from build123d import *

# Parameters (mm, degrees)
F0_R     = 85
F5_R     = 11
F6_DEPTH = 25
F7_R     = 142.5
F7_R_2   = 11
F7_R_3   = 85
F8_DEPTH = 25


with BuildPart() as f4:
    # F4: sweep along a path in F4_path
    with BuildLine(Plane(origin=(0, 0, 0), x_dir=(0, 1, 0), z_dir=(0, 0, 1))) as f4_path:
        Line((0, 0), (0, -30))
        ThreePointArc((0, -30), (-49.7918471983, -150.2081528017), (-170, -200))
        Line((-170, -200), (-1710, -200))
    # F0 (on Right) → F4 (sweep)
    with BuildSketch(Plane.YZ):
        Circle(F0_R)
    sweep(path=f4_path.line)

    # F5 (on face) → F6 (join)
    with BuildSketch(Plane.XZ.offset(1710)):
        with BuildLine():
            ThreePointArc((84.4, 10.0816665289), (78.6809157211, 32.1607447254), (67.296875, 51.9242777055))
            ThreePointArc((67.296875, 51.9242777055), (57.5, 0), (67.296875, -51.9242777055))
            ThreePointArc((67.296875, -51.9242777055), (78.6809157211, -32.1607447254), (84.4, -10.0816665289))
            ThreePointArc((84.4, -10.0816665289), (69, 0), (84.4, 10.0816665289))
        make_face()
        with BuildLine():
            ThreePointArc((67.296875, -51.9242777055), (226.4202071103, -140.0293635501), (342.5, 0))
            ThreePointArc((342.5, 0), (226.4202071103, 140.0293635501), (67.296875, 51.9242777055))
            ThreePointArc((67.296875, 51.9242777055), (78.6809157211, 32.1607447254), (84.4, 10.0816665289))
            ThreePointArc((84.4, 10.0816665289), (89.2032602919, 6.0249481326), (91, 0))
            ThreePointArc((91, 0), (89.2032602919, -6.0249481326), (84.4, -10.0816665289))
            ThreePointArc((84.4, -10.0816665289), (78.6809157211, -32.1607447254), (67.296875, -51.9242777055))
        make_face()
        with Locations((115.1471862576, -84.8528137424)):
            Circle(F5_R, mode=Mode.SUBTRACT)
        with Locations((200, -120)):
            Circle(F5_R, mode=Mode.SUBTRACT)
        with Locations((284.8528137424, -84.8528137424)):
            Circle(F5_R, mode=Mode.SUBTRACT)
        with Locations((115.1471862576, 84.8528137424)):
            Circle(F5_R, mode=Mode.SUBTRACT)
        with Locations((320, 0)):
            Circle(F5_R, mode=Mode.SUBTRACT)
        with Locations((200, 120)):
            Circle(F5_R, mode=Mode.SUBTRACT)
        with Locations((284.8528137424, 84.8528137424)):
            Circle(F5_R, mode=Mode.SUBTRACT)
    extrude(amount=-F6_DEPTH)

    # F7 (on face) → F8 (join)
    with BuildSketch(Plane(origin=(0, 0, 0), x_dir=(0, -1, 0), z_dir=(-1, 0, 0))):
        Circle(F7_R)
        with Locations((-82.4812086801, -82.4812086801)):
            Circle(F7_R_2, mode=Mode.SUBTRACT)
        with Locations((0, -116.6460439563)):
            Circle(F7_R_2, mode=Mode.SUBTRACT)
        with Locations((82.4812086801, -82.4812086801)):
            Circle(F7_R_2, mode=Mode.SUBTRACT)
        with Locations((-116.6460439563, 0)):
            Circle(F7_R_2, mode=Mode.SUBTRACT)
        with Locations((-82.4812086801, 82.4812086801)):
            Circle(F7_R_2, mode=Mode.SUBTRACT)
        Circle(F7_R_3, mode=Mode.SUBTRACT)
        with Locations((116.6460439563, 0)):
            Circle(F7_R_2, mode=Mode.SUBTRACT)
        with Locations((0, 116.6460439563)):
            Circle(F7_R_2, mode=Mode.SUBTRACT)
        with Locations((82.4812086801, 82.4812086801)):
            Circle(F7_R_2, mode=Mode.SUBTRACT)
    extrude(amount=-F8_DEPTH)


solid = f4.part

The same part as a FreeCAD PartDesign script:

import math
import FreeCAD as App
import Part
import Sketcher

V = App.Vector
Q = App.Units.Quantity

doc = App.newDocument("Part")
body = doc.addObject("PartDesign::Body", "Body")

# Sketch on YZ plane
sketch1 = body.newObject("Sketcher::SketchObject", "Sketch")
sketch1.AttachmentSupport = (doc.getObject("YZ_Plane"), [""])
sketch1.MapMode = "FlatFace"
sketch1.addGeometry(Part.Circle(V(0, 0, 0), V(0, 0, 1), 85), False)
sketch1.addConstraint([
    Sketcher.Constraint("Coincident", 0, 3, -1, 1),
    Sketcher.Constraint("Diameter", 0, Q("170 mm")),
])

# Sketch on XY plane
sketch2 = body.newObject("Sketcher::SketchObject", "Sketch001")
sketch2.AttachmentSupport = (doc.getObject("XY_Plane"), [""])
sketch2.MapMode = "FlatFace"
sketch2.addGeometry([
    Part.LineSegment(V(0, 0, 0), V(30, 0, 0)),
    Part.ArcOfCircle(Part.Circle(V(30, -170, 0), V(0, 0, 1), 170), math.radians(0), math.radians(90)),
    Part.LineSegment(V(200, -170, 0), V(200, -1710, 0)),
], False)
sketch2.addConstraint([
    Sketcher.Constraint("Tangent", 0, 2, 1, 2),
    Sketcher.Constraint("Tangent", 1, 1, 2, 1),
    Sketcher.Constraint("Horizontal", 0),
    Sketcher.Constraint("Vertical", 2),
    Sketcher.Constraint("Coincident", 0, 1, -1, 1),
    Sketcher.Constraint("Radius", 1, Q("170 mm")),
    Sketcher.Constraint("DistanceX", 0, 1, 0, 2, Q("30 mm")),
    Sketcher.Constraint("DistanceY", 2, 2, 2, 1, Q("1540 mm")),
])
doc.recompute()

additivepipe = body.newObject("PartDesign::AdditivePipe", "AdditivePipe")
additivepipe.Profile = sketch1
additivepipe.Spine = (sketch2, ["Edge1", "Edge2", "Edge3"])

# Sketch on XZ plane
sketch3 = body.newObject("Sketcher::SketchObject", "Sketch002")
sketch3.AttachmentSupport = (doc.getObject("XZ_Plane"), [""])
sketch3.MapMode = "FlatFace"
sketch3.AttachmentOffset = App.Placement(V(0, 0, 1710), App.Rotation())
sketch3.addGeometry([
    Part.Circle(V(200, 0, 0), V(0, 0, 1), 142),  # 0
    Part.Circle(V(115, -85, 0), V(0, 0, 1), 11),  # 1
    Part.Circle(V(200, -120, 0), V(0, 0, 1), 11),  # 2
    Part.Circle(V(285, -85, 0), V(0, 0, 1), 11),  # 3
    Part.ArcOfCircle(Part.Circle(V(80, 0, 0), V(0, 0, 1), 11), math.radians(66), math.radians(294)),  # 4
    Part.ArcOfCircle(Part.Circle(V(80, 0, 0), V(0, 0, 1), 11), math.radians(0), math.radians(66)),  # 5
    Part.ArcOfCircle(Part.Circle(V(80, 0, 0), V(0, 0, 1), 11), math.radians(-66), math.radians(0)),  # 6
    Part.Circle(V(115, 85, 0), V(0, 0, 1), 11),  # 7
    Part.Circle(V(320, 0, 0), V(0, 0, 1), 11),  # 8
    Part.Circle(V(200, 120, 0), V(0, 0, 1), 11),  # 9
    Part.Circle(V(285, 85, 0), V(0, 0, 1), 11),  # 10
], False)
sketch3.addConstraint([
    Sketcher.Constraint("Tangent", 4, 1, 5, 2),
    Sketcher.Constraint("Tangent", 5, 1, 6, 2),
    Sketcher.Constraint("Tangent", 6, 1, 4, 2),
    Sketcher.Constraint("Equal", 1, 2),
    Sketcher.Constraint("Equal", 2, 3),
    Sketcher.Constraint("Equal", 3, 4),
    Sketcher.Constraint("Equal", 6, 7),
    Sketcher.Constraint("Equal", 7, 8),
    Sketcher.Constraint("Equal", 8, 9),
    Sketcher.Constraint("Equal", 9, 10),
    Sketcher.Constraint("Symmetric", 1, 3, 7, 3, -1),
    Sketcher.Constraint("Symmetric", 2, 3, 9, 3, -1),
    Sketcher.Constraint("Symmetric", 3, 3, 10, 3, -1),
    Sketcher.Constraint("Symmetric", 4, 1, 6, 1, -1),
    Sketcher.Constraint("PointOnObject", 0, 3, -1),
    Sketcher.Constraint("PointOnObject", 8, 3, -1),
    Sketcher.Constraint("PointOnObject", 5, 1, -1),
    Sketcher.Constraint("Horizontal", 1, 3, 3, 3),
    Sketcher.Constraint("Vertical", 0, 3, 2, 3),
    Sketcher.Constraint("Diameter", 0, Q("285 mm")),
    Sketcher.Constraint("Diameter", 1, Q("22 mm")),
    Sketcher.Constraint("DistanceX", -1, 1, 0, 3, Q("200 mm")),
    Sketcher.Constraint("DistanceY", 2, 3, -1, 1, Q("120 mm")),
    Sketcher.Constraint("DistanceX", -1, 1, 4, 3, Q("80 mm")),
    Sketcher.Constraint("DistanceX", -1, 1, 8, 3, Q("320 mm")),
    Sketcher.Constraint("DistanceX", -1, 1, 4, 1, Q("84.4 mm")),
    Sketcher.Constraint("DistanceY", 1, 3, 4, 1, Q("94.93448 mm")),
    Sketcher.Constraint("DistanceX", -1, 1, 1, 3, Q("115.147186 mm")),
    Sketcher.Constraint("DistanceX", -1, 1, 3, 3, Q("284.852814 mm")),
])
pad1 = body.newObject("PartDesign::Pad", "Pad")
pad1.Profile = sketch3
pad1.Length = 25
pad1.Reversed = True

# Sketch on YZ plane
sketch4 = body.newObject("Sketcher::SketchObject", "Sketch003")
sketch4.AttachmentSupport = (doc.getObject("YZ_Plane"), [""])
sketch4.MapMode = "FlatFace"
sketch4.addGeometry([
    Part.Circle(V(0, 0, 0), V(0, 0, 1), 142),  # 0
    Part.Circle(V(82, -82, 0), V(0, 0, 1), 11),  # 1
    Part.Circle(V(0, -117, 0), V(0, 0, 1), 11),  # 2
    Part.Circle(V(-82, -82, 0), V(0, 0, 1), 11),  # 3
    Part.Circle(V(117, 0, 0), V(0, 0, 1), 11),  # 4
    Part.Circle(V(82, 82, 0), V(0, 0, 1), 11),  # 5
    Part.Circle(V(0, 0, 0), V(0, 0, 1), 85),  # 6
    Part.Circle(V(-117, 0, 0), V(0, 0, 1), 11),  # 7
    Part.Circle(V(0, 117, 0), V(0, 0, 1), 11),  # 8
    Part.Circle(V(-82, 82, 0), V(0, 0, 1), 11),  # 9
], False)
sketch4.addConstraint([
    Sketcher.Constraint("Coincident", 0, 3, -1, 1),
    Sketcher.Constraint("Coincident", 6, 3, -1, 1),
    Sketcher.Constraint("Equal", 1, 2),
    Sketcher.Constraint("Equal", 2, 3),
    Sketcher.Constraint("Equal", 3, 4),
    Sketcher.Constraint("Equal", 4, 5),
    Sketcher.Constraint("Equal", 5, 7),
    Sketcher.Constraint("Equal", 7, 8),
    Sketcher.Constraint("Equal", 8, 9),
    Sketcher.Constraint("Symmetric", 3, 3, 5, 3, -1, 1),
    Sketcher.Constraint("Symmetric", 4, 3, 7, 3, -1, 1),
    Sketcher.Constraint("Symmetric", 2, 3, 8, 3, -1, 1),
    Sketcher.Constraint("Symmetric", 1, 3, 9, 3, -1, 1),
    Sketcher.Constraint("Symmetric", 1, 3, 3, 3, -2),
    Sketcher.Constraint("PointOnObject", 2, 3, -2),
    Sketcher.Constraint("PointOnObject", 4, 3, -1),
    Sketcher.Constraint("Diameter", 0, Q("285 mm")),
    Sketcher.Constraint("Diameter", 1, Q("22 mm")),
    Sketcher.Constraint("Diameter", 6, Q("170 mm")),
    Sketcher.Constraint("DistanceX", -1, 1, 1, 3, Q("82.481209 mm")),
    Sketcher.Constraint("DistanceY", 1, 3, -1, 1, Q("82.481209 mm")),
    Sketcher.Constraint("DistanceY", 2, 3, -1, 1, Q("116.646044 mm")),
    Sketcher.Constraint("DistanceX", -1, 1, 4, 3, Q("116.646044 mm")),
])
pad2 = body.newObject("PartDesign::Pad", "Pad001")
pad2.Profile = sketch4
pad2.Length = 25

doc.recompute()
